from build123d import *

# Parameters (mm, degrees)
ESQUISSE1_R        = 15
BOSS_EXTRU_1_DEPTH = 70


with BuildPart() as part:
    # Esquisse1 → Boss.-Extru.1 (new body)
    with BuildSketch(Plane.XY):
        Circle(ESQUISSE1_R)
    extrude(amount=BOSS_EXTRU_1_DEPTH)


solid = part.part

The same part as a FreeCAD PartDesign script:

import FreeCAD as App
import Part
import Sketcher
from FreeCAD import Vector
Q = App.Units.Quantity

doc = App.newDocument("Part")
body = doc.addObject("PartDesign::Body", "Body")

# Sketch on XY plane
sketch1 = body.newObject("Sketcher::SketchObject", "Sketch")
sketch1.AttachmentSupport = (doc.getObject("XY_Plane"), [""])
sketch1.MapMode = "FlatFace"
sketch1.addGeometry(Part.Circle(Vector(0, 0, 0), Vector(0, 0, 1), 15), False)
sketch1.addConstraint([
    Sketcher.Constraint("Coincident", 0, 3, -1, 1),
    Sketcher.Constraint("Diameter", 0, Q("30 mm")),
])
pad1 = body.newObject("PartDesign::Pad", "Pad")
pad1.Profile = sketch1
pad1.Length = 70

doc.recompute()
